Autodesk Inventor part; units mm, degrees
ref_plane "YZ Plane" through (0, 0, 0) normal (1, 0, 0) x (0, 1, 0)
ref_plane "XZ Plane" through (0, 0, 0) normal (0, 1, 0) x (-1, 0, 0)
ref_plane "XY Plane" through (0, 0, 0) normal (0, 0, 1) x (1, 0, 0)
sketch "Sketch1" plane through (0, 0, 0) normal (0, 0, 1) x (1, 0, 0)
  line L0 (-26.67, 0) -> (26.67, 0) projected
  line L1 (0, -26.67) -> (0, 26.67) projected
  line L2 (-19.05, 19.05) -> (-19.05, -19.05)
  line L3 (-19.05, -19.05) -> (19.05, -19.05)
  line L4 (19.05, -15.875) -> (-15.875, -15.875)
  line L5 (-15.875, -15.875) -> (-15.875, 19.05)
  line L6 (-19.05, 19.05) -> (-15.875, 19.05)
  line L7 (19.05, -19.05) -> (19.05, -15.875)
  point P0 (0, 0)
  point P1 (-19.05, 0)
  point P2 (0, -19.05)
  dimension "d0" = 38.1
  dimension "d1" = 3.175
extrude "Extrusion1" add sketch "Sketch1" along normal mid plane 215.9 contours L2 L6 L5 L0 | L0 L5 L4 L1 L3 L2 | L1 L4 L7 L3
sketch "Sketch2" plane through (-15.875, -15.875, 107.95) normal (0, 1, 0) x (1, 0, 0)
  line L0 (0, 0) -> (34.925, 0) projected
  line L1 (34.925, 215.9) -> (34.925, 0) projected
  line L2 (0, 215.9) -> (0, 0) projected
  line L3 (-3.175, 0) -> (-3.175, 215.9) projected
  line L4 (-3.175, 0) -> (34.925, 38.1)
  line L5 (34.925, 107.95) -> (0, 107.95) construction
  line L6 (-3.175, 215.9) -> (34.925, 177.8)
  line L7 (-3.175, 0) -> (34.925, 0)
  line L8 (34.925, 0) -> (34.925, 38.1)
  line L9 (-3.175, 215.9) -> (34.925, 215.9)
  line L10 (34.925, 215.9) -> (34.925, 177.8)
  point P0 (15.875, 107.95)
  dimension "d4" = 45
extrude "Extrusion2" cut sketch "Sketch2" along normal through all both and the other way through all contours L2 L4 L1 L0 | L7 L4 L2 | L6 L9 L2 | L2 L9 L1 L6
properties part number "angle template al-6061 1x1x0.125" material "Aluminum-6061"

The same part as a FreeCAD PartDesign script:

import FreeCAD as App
import Part
import Sketcher
from FreeCAD import Vector
Q = App.Units.Quantity

doc = App.newDocument("Part")
body = doc.addObject("PartDesign::Body", "Body")

sketch1 = body.newObject("Sketcher::SketchObject", "Sketch")
sketch1.AttachmentSupport = (doc.getObject("XY_Plane"), [""])
sketch1.MapMode = "FlatFace"
sketch1.addGeometry([
    Part.LineSegment(Vector(-19.1, 19.1, 0), Vector(-19.1, -19.1, 0)),
    Part.LineSegment(Vector(-19.1, -19.1, 0), Vector(19.1, -19.1, 0)),
    Part.LineSegment(Vector(19.1, -19.1, 0), Vector(19.1, -15.9, 0)),
    Part.LineSegment(Vector(19.1, -15.9, 0), Vector(-15.9, -15.9, 0)),
    Part.LineSegment(Vector(-15.9, -15.9, 0), Vector(-15.9, 19.1, 0)),
    Part.LineSegment(Vector(-15.9, 19.1, 0), Vector(-19.1, 19.1, 0)),
], False)
sketch1.addConstraint([
    Sketcher.Constraint("Coincident", 0, 2, 1, 1),
    Sketcher.Constraint("Coincident", 1, 2, 2, 1),
    Sketcher.Constraint("Coincident", 2, 2, 3, 1),
    Sketcher.Constraint("Coincident", 3, 2, 4, 1),
    Sketcher.Constraint("Coincident", 4, 2, 5, 1),
    Sketcher.Constraint("Coincident", 5, 2, 0, 1),
    Sketcher.Constraint("Vertical", 0),
    Sketcher.Constraint("Horizontal", 1),
    Sketcher.Constraint("Vertical", 2),
    Sketcher.Constraint("Horizontal", 3),
    Sketcher.Constraint("Vertical", 4),
    Sketcher.Constraint("Horizontal", 5),
    Sketcher.Constraint("Symmetric", 1, 2, 5, 2, -1, 1),
    Sketcher.Constraint("Equal", 1, 0),
    Sketcher.Constraint("Equal", 5, 2),
    Sketcher.Constraint("DistanceX", 1, 1, 1, 2, Q("1.5 in")),
    Sketcher.Constraint("DistanceX", 5, 2, 5, 1, Q("0.125 in")),
])
pad1 = body.newObject("PartDesign::Pad", "Pad")
pad1.Profile = sketch1
pad1.Length = Q("8.5 in")
pad1.Midplane = True

sketch2 = body.newObject("Sketcher::SketchObject", "Sketch001")
sketch2.AttachmentSupport = (doc.getObject("XZ_Plane"), [""])
sketch2.MapMode = "FlatFace"
sketch2.AttachmentOffset = App.Placement(Vector(0, 0, 0.625 * 25.4), App.Rotation())
sketch2.addGeometry([
    Part.LineSegment(Vector(19, 70, 0), Vector(-19, 108, 0)),
    Part.LineSegment(Vector(-19, 108, 0), Vector(19, 108, 0)),
    Part.LineSegment(Vector(19, 108, 0), Vector(19, 70, 0)),
    Part.LineSegment(Vector(-19, -108, 0), Vector(19, -70, 0)),
    Part.LineSegment(Vector(19, -70, 0), Vector(19, -108, 0)),
    Part.LineSegment(Vector(19, -108, 0), Vector(-19, -108, 0)),
], False)
sketch2.addConstraint([
    Sketcher.Constraint("Coincident", 0, 2, 1, 1),
    Sketcher.Constraint("Coincident", 1, 2, 2, 1),
    Sketcher.Constraint("Coincident", 2, 2, 0, 1),
    Sketcher.Constraint("Coincident", 3, 2, 4, 1),
    Sketcher.Constraint("Coincident", 4, 2, 5, 1),
    Sketcher.Constraint("Coincident", 5, 2, 3, 1),
    Sketcher.Constraint("Horizontal", 1),
    Sketcher.Constraint("Vertical", 2),
    Sketcher.Constraint("Vertical", 4),
    Sketcher.Constraint("Horizontal", 5),
    Sketcher.Constraint("Symmetric", 0, 2, 4, 2, -1, 1),
    Sketcher.Constraint("Symmetric", 2, 2, 3, 2, -1),
    Sketcher.Constraint("Perpendicular", 0, 3),
    Sketcher.Constraint("Vertical", 0, 2, 5, 2),
    Sketcher.Constraint("DistanceX", 1, 1, 1, 2, Q("1.5 in")),
    Sketcher.Constraint("DistanceY", 3, 2, 1, 2, Q("7 in")),
])
pocket1 = body.newObject("PartDesign::Pocket", "Pocket")
pocket1.Profile = sketch2
pocket1.Type = "ThroughAll"
pocket1.Midplane = True

doc.recompute()
